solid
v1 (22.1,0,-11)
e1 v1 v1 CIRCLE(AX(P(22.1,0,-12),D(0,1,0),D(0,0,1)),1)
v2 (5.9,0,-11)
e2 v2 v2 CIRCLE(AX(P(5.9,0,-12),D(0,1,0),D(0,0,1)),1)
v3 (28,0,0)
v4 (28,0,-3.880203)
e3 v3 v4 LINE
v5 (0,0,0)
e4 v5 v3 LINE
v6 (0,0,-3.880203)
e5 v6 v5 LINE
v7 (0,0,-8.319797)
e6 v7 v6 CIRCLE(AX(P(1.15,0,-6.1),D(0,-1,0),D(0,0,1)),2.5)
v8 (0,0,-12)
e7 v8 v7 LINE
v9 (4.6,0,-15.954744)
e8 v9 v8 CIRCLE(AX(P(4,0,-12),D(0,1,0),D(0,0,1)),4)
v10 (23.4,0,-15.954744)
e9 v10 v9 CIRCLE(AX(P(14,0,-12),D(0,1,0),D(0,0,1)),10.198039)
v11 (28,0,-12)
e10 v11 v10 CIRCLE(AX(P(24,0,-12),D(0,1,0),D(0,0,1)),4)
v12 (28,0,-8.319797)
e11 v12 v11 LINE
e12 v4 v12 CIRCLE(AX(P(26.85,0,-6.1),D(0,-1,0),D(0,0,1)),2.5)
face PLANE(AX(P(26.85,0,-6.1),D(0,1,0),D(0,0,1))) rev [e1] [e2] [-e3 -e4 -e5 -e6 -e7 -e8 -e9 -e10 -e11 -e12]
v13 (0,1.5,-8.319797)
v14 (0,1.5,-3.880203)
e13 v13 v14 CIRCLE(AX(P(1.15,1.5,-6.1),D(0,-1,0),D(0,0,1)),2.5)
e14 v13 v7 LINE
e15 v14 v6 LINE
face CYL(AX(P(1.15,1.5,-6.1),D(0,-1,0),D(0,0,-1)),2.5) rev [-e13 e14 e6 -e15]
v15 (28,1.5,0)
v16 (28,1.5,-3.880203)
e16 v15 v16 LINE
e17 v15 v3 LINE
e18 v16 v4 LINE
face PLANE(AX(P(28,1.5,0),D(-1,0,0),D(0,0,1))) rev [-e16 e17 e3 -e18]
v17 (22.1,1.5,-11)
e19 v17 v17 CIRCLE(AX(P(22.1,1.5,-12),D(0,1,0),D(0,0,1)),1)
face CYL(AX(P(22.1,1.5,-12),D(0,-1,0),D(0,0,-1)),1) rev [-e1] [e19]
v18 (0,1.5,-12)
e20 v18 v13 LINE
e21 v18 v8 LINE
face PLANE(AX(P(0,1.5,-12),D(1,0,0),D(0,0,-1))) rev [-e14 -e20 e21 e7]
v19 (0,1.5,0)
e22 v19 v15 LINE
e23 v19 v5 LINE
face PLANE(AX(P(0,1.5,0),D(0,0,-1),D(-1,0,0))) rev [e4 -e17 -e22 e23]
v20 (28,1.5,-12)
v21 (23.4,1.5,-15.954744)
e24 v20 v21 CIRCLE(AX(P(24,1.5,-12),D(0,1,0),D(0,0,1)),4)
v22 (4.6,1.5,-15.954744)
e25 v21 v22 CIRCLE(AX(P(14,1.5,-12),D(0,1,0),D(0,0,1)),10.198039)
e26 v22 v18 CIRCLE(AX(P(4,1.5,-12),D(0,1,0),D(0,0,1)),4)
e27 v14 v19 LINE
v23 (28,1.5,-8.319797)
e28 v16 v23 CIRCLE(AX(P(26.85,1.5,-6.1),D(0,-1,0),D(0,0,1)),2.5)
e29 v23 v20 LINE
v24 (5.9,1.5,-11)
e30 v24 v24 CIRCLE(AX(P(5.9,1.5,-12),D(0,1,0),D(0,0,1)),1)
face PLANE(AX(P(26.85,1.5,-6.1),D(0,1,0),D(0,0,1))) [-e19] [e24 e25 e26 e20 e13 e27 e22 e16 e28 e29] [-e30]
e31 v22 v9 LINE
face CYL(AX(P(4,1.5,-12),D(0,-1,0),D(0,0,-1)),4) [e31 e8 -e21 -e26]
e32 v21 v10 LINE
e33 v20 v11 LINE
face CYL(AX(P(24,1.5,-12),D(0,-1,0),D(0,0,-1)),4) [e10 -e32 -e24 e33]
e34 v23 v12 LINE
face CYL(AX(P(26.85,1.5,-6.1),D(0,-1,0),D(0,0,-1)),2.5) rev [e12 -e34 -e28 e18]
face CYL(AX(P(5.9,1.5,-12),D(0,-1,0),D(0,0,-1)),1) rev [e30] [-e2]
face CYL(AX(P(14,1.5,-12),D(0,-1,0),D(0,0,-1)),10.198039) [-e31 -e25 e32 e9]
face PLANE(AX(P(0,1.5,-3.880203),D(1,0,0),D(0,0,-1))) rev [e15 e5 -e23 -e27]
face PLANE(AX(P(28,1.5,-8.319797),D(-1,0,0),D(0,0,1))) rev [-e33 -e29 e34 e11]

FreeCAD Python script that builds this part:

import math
import FreeCAD as App
import Part
import Sketcher

V = App.Vector
Q = App.Units.Quantity

doc = App.newDocument("Part")
body = doc.addObject("PartDesign::Body", "Body")

sketch1 = body.newObject("Sketcher::SketchObject", "Sketch")
sketch1.AttachmentSupport = (doc.getObject("XZ_Plane"), [""])
sketch1.MapMode = "FlatFace"
sketch1.addGeometry(Part.LineSegment(V(0, 0, 0), V(28, 0, 0)), False)
sketch1.addGeometry(Part.LineSegment(V(28, 0, 0), V(28, -3.880203, 0)), False)
sketch1.addGeometry(Part.ArcOfCircle(Part.Circle(V(26.85, -6.1, 0), V(0, 0, 1), 2.5), math.radians(62.612892), math.radians(297.387108)), False)
sketch1.addGeometry(Part.LineSegment(V(28, -8.319797, 0), V(28, -12, 0)), False)
sketch1.addGeometry(Part.ArcOfCircle(Part.Circle(V(24, -12, 0), V(0, 0, 1), 4), math.radians(-98.626927), math.radians(0)), False)
sketch1.addGeometry(Part.ArcOfCircle(Part.Circle(V(14, -12, 0), V(0, 0, 1), 10.198039), math.radians(-157.182661), math.radians(-22.817339)), False)
sketch1.addGeometry(Part.ArcOfCircle(Part.Circle(V(4, -12, 0), V(0, 0, 1), 4), math.radians(180), math.radians(278.626927)), False)
sketch1.addGeometry(Part.LineSegment(V(0, -12, 0), V(0, -8.319797, 0)), False)
sketch1.addGeometry(Part.ArcOfCircle(Part.Circle(V(1.15, -6.1, 0), V(0, 0, 1), 2.5), math.radians(-117.387108), math.radians(117.387108)), False)
sketch1.addGeometry(Part.LineSegment(V(0, -3.880203, 0), V(0, 0, 0)), False)
sketch1.addGeometry(Part.Circle(V(5.9, -12, 0), V(0, 0, 1), 1), False)
sketch1.addGeometry(Part.Circle(V(22.1, -12, 0), V(0, 0, 1), 1), False)
sketch1.addConstraint(Sketcher.Constraint("Coincident", 0, 2, 1, 1))
sketch1.addConstraint(Sketcher.Constraint("Coincident", 1, 2, 2, 1))
sketch1.addConstraint(Sketcher.Constraint("Coincident", 2, 2, 3, 1))
sketch1.addConstraint(Sketcher.Constraint("Tangent", 3, 2, 4, 2))
sketch1.addConstraint(Sketcher.Constraint("Coincident", 4, 1, 5, 2))
sketch1.addConstraint(Sketcher.Constraint("Coincident", 5, 1, 6, 2))
sketch1.addConstraint(Sketcher.Constraint("Tangent", 6, 1, 7, 1))
sketch1.addConstraint(Sketcher.Constraint("Coincident", 7, 2, 8, 1))
sketch1.addConstraint(Sketcher.Constraint("Coincident", 8, 2, 9, 1))
sketch1.addConstraint(Sketcher.Constraint("Coincident", 9, 2, 0, 1))
sketch1.addConstraint(Sketcher.Constraint("Horizontal", 0))
sketch1.addConstraint(Sketcher.Constraint("Vertical", 1))
sketch1.addConstraint(Sketcher.Constraint("Vertical", 3))
sketch1.addConstraint(Sketcher.Constraint("Vertical", 7))
sketch1.addConstraint(Sketcher.Constraint("Vertical", 9))
sketch1.addConstraint(Sketcher.Constraint("Coincident", 9, 2, -1, 1))
sketch1.addConstraint(Sketcher.Constraint("Equal", 4, 6))
sketch1.addConstraint(Sketcher.Constraint("Equal", 2, 8))
sketch1.addConstraint(Sketcher.Constraint("Equal", 10, 11))
sketch1.addConstraint(Sketcher.Constraint("PointOnObject", 6, 1, -2))
sketch1.addConstraint(Sketcher.Constraint("Horizontal", 4, 3, 5, 3))
sketch1.addConstraint(Sketcher.Constraint("Horizontal", 5, 3, 6, 3))
sketch1.addConstraint(Sketcher.Constraint("Horizontal", 2, 3, 8, 3))
sketch1.addConstraint(Sketcher.Constraint("Horizontal", 6, 3, 10, 3))
sketch1.addConstraint(Sketcher.Constraint("Horizontal", 10, 3, 11, 3))
sketch1.addConstraint(Sketcher.Constraint("Horizontal", 4, 1, 5, 1))
sketch1.addConstraint(Sketcher.Constraint("Horizontal", 2, 2, 7, 2))
sketch1.addConstraint(Sketcher.Constraint("Horizontal", 1, 2, 8, 2))
sketch1.addConstraint(Sketcher.Constraint("Diameter", 10, Q("2 mm")))
sketch1.addConstraint(Sketcher.Constraint("Radius", 4, Q("4 mm")))
sketch1.addConstraint(Sketcher.Constraint("Radius", 2, Q("2.5 mm")))
sketch1.addConstraint(Sketcher.Constraint("DistanceX", 0, 1, 0, 2, Q("28 mm")))
sketch1.addConstraint(Sketcher.Constraint("DistanceY", 4, 3, -1, 1, Q("12 mm")))
sketch1.addConstraint(Sketcher.Constraint("DistanceY", 2, 3, -1, 1, Q("6.1 mm")))
sketch1.addConstraint(Sketcher.Constraint("DistanceX", -1, 1, 10, 3, Q("5.9 mm")))
sketch1.addConstraint(Sketcher.Constraint("DistanceX", -1, 1, 11, 3, Q("22.1 mm")))
sketch1.addConstraint(Sketcher.Constraint("DistanceX", -1, 1, 4, 1, Q("23.4 mm")))
sketch1.addConstraint(Sketcher.Constraint("DistanceX", 8, 3, 2, 3, Q("25.7 mm")))
pad1 = body.newObject("PartDesign::Pad", "Pad")
pad1.Profile = sketch1
pad1.Length = 1.5
pad1.Reversed = True

doc.recompute()
